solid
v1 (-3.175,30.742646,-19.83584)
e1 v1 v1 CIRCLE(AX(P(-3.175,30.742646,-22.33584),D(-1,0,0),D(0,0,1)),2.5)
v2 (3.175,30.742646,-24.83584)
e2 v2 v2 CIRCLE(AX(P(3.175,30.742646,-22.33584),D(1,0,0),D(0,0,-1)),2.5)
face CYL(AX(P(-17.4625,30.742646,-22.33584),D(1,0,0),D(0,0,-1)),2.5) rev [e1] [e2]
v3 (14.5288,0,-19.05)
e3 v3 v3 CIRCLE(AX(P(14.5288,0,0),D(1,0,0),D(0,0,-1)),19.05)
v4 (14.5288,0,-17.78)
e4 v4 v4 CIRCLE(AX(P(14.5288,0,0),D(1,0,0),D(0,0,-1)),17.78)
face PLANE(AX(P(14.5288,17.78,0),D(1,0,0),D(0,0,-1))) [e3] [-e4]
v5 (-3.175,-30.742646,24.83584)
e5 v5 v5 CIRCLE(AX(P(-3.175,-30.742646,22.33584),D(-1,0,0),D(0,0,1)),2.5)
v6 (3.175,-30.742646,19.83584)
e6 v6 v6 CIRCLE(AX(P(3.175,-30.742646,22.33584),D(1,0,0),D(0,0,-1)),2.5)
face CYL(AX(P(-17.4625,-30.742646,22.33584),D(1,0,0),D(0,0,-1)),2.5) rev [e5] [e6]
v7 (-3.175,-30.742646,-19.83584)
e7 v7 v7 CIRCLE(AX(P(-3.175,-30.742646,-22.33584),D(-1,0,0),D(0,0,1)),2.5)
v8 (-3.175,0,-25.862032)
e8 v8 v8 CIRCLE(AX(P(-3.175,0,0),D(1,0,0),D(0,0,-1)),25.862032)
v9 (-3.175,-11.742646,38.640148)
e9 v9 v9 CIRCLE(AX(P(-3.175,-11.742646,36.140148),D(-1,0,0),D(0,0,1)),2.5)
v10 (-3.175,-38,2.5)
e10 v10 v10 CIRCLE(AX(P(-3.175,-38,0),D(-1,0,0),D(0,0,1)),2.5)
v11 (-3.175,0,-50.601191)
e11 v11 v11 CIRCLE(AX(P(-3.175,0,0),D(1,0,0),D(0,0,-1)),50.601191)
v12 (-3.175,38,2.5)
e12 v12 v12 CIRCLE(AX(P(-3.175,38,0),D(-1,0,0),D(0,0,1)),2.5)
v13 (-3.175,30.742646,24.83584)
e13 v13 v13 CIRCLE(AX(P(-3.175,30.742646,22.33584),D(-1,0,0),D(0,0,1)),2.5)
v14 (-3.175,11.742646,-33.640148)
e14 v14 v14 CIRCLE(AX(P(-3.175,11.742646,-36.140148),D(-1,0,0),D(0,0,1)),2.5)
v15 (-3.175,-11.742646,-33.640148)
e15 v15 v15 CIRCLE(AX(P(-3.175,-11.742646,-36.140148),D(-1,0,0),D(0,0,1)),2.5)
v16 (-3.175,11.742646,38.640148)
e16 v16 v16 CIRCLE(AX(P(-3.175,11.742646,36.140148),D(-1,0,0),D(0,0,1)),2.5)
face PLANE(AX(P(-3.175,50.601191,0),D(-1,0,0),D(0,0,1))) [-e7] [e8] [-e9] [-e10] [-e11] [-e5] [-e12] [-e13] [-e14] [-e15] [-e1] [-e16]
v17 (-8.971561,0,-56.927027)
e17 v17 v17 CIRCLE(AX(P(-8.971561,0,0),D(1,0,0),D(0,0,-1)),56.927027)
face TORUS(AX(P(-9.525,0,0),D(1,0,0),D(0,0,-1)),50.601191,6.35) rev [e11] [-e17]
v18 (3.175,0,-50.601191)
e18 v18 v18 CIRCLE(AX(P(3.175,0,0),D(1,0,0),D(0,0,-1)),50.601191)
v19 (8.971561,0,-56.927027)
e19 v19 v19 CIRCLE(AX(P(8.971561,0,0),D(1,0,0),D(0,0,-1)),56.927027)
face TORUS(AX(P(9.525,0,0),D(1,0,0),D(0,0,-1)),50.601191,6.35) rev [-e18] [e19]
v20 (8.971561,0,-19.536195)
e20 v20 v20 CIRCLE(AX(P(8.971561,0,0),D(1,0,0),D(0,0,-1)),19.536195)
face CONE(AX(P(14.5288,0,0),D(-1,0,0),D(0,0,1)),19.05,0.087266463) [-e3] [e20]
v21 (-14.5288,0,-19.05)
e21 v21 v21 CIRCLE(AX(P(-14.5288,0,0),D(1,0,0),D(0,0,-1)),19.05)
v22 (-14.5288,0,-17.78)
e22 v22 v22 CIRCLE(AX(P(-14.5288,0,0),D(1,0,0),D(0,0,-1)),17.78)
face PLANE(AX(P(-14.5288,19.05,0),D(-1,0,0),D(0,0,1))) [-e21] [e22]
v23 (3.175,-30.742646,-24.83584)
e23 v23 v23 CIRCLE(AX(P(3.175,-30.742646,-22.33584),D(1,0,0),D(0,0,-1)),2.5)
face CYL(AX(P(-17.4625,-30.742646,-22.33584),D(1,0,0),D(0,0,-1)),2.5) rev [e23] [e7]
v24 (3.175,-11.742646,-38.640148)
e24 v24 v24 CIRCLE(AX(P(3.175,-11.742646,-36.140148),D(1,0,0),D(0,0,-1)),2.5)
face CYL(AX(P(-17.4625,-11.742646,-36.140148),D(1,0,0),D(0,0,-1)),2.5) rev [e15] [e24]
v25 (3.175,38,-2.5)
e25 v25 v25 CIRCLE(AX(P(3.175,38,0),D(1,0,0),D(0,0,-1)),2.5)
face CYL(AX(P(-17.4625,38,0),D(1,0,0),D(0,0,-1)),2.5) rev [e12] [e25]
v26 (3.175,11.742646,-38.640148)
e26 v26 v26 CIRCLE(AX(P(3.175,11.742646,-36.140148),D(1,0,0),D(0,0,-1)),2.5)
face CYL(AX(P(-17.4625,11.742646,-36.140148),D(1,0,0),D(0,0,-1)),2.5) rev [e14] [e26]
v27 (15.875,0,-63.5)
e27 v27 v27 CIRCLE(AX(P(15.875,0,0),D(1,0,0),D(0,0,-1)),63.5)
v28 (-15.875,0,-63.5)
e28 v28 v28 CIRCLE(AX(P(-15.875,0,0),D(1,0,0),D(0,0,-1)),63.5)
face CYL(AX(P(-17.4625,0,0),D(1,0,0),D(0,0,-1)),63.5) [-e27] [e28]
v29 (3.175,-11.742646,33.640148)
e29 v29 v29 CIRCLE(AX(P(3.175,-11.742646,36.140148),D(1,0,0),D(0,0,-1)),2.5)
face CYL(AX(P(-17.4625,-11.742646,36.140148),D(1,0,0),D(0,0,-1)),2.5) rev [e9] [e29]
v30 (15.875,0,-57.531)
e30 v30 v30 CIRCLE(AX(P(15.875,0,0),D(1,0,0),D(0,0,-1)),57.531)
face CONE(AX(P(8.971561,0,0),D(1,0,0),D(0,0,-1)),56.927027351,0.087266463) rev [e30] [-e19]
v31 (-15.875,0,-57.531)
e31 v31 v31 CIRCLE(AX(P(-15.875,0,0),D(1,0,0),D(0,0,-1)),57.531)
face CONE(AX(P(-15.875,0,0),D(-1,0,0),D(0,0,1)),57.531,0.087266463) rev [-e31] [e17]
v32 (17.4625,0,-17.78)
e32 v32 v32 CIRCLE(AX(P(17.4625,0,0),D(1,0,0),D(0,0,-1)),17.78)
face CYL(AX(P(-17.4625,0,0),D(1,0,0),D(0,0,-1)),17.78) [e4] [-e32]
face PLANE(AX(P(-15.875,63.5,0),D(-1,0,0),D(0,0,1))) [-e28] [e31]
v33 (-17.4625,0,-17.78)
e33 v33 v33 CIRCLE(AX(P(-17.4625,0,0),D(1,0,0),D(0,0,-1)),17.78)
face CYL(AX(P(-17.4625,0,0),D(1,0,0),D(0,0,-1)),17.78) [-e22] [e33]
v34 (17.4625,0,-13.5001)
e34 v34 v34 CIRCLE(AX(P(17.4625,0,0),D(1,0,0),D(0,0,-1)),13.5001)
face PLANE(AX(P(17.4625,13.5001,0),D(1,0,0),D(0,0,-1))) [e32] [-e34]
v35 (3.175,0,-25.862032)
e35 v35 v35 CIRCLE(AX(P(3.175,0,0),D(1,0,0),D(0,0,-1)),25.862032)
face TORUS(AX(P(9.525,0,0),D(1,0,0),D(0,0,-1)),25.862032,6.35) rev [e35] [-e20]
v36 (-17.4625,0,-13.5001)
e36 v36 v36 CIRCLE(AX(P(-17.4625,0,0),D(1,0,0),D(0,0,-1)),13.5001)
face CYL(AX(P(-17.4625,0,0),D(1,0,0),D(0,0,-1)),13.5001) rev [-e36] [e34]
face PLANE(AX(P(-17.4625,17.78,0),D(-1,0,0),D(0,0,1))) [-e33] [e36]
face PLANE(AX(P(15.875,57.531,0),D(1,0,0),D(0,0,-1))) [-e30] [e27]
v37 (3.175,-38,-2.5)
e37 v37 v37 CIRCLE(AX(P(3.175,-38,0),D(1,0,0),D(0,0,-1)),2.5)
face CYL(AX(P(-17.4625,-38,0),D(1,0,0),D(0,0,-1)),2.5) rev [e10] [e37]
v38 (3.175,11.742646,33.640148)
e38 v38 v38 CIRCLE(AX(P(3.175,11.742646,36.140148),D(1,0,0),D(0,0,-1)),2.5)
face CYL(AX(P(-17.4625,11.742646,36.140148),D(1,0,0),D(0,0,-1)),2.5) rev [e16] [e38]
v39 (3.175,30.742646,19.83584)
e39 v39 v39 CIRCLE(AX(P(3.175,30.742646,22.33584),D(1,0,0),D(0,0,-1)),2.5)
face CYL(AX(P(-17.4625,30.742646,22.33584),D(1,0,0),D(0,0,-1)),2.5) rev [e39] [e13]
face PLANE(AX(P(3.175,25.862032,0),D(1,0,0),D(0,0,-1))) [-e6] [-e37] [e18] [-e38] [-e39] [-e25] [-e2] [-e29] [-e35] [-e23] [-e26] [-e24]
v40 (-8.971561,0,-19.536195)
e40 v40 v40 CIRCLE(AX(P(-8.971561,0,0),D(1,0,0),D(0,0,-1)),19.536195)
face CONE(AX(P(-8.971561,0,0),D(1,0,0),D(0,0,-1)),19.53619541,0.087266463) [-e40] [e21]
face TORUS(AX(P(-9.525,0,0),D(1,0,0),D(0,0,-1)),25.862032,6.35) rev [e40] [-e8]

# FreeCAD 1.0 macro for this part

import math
import FreeCAD as App
import Part
import Sketcher
from FreeCAD import Vector
Q = App.Units.Quantity

doc = App.newDocument("Part")
body = doc.addObject("PartDesign::Body", "Body")

# Sketch on XY plane
sketch1 = body.newObject("Sketcher::SketchObject", "Sketch")
sketch1.AttachmentSupport = (doc.getObject("XY_Plane"), [""])
sketch1.MapMode = "FlatFace"
sketch1.addGeometry([
    Part.LineSegment(Vector(-14.5, 17.8, 0), Vector(-17.5, 17.8, 0)),  # 0
    Part.LineSegment(Vector(-17.5, 17.8, 0), Vector(-17.5, 13.5, 0)),  # 1
    Part.LineSegment(Vector(-17.5, 13.5, 0), Vector(17.5, 13.5, 0)),  # 2
    Part.LineSegment(Vector(17.5, 13.5, 0), Vector(17.5, 17.8, 0)),  # 3
    Part.LineSegment(Vector(17.5, 17.8, 0), Vector(14.5, 17.8, 0)),  # 4
    Part.LineSegment(Vector(14.5, 17.8, 0), Vector(14.5, 19.1, 0)),  # 5
    Part.LineSegment(Vector(14.5, 19.1, 0), Vector(9, 19.5, 0)),  # 6
    Part.ArcOfCircle(Part.Circle(Vector(9.5, 25.9, 0), Vector(0, 0, 1), 6.3), math.radians(180), math.radians(265)),  # 7
    Part.LineSegment(Vector(3.2, 25.9, 0), Vector(3.2, 50.6, 0)),  # 8
    Part.ArcOfCircle(Part.Circle(Vector(9.5, 50.6, 0), Vector(0, 0, 1), 6.3), math.radians(95), math.radians(180)),  # 9
    Part.LineSegment(Vector(9, 56.9, 0), Vector(15.9, 57.5, 0)),  # 10
    Part.LineSegment(Vector(15.9, 57.5, 0), Vector(15.9, 63.5, 0)),  # 11
    Part.LineSegment(Vector(15.9, 63.5, 0), Vector(-15.9, 63.5, 0)),  # 12
    Part.LineSegment(Vector(-15.9, 63.5, 0), Vector(-15.9, 57.5, 0)),  # 13
    Part.LineSegment(Vector(-15.9, 57.5, 0), Vector(-9, 56.9, 0)),  # 14
    Part.ArcOfCircle(Part.Circle(Vector(-9.5, 50.6, 0), Vector(0, 0, 1), 6.3), math.radians(0), math.radians(85)),  # 15
    Part.LineSegment(Vector(-3.2, 50.6, 0), Vector(-3.2, 25.9, 0)),  # 16
    Part.ArcOfCircle(Part.Circle(Vector(-9.5, 25.9, 0), Vector(0, 0, 1), 6.3), math.radians(-85), math.radians(0)),  # 17
    Part.LineSegment(Vector(-9, 19.5, 0), Vector(-14.5, 19.1, 0)),  # 18
    Part.LineSegment(Vector(-14.5, 19.1, 0), Vector(-14.5, 17.8, 0)),  # 19
], False)
sketch1.addConstraint([
    Sketcher.Constraint("Coincident", 0, 2, 1, 1),
    Sketcher.Constraint("Coincident", 1, 2, 2, 1),
    Sketcher.Constraint("Coincident", 2, 2, 3, 1),
    Sketcher.Constraint("Coincident", 3, 2, 4, 1),
    Sketcher.Constraint("Coincident", 4, 2, 5, 1),
    Sketcher.Constraint("Coincident", 5, 2, 6, 1),
    Sketcher.Constraint("Tangent", 6, 2, 7, 2),
    Sketcher.Constraint("Tangent", 7, 1, 8, 1),
    Sketcher.Constraint("Tangent", 8, 2, 9, 2),
    Sketcher.Constraint("Tangent", 9, 1, 10, 1),
    Sketcher.Constraint("Coincident", 10, 2, 11, 1),
    Sketcher.Constraint("Coincident", 11, 2, 12, 1),
    Sketcher.Constraint("Coincident", 12, 2, 13, 1),
    Sketcher.Constraint("Coincident", 13, 2, 14, 1),
    Sketcher.Constraint("Tangent", 14, 2, 15, 2),
    Sketcher.Constraint("Tangent", 15, 1, 16, 1),
    Sketcher.Constraint("Tangent", 16, 2, 17, 2),
    Sketcher.Constraint("Tangent", 17, 1, 18, 1),
    Sketcher.Constraint("Coincident", 18, 2, 19, 1),
    Sketcher.Constraint("Coincident", 19, 2, 0, 1),
    Sketcher.Constraint("Horizontal", 0),
    Sketcher.Constraint("Vertical", 1),
    Sketcher.Constraint("Horizontal", 2),
    Sketcher.Constraint("Vertical", 3),
    Sketcher.Constraint("Horizontal", 4),
    Sketcher.Constraint("Vertical", 5),
    Sketcher.Constraint("Vertical", 8),
    Sketcher.Constraint("Vertical", 11),
    Sketcher.Constraint("Horizontal", 12),
    Sketcher.Constraint("Vertical", 13),
    Sketcher.Constraint("Vertical", 16),
    Sketcher.Constraint("Vertical", 19),
    Sketcher.Constraint("Equal", 7, 9),
    Sketcher.Constraint("Equal", 9, 15),
    Sketcher.Constraint("Equal", 15, 17),
    Sketcher.Constraint("Symmetric", 9, 3, 15, 3, -2),
    Sketcher.Constraint("Symmetric", 0, 2, 3, 2, -2),
    Sketcher.Constraint("Symmetric", 10, 2, 13, 2, -2),
    Sketcher.Constraint("Symmetric", 6, 2, 17, 1, -2),
    Sketcher.Constraint("Parallel", 6, 14),
    Sketcher.Constraint("Horizontal", 5, 2, 18, 2),
    Sketcher.Constraint("Radius", 7, Q("0.25 in")),
    Sketcher.Constraint("Angle", 6, Q("175 deg")),
    Sketcher.Constraint("DistanceX", 15, 3, 10, 2, Q("1 in")),
    Sketcher.Constraint("DistanceX", 12, 2, 12, 1, Q("1.25 in")),
    Sketcher.Constraint("DistanceY", 5, 1, 5, 2, Q("0.05 in")),
    Sketcher.Constraint("DistanceY", -1, 1, 0, 2, Q("0.7 in")),
    Sketcher.Constraint("DistanceY", -1, 1, 11, 2, Q("2.5 in")),
    Sketcher.Constraint("DistanceX", 2, 1, 2, 2, Q("1.375 in")),
    Sketcher.Constraint("DistanceY", 11, 1, 11, 2, Q("0.235 in")),
    Sketcher.Constraint("DistanceX", 0, 2, 0, 1, Q("0.1155 in")),
    Sketcher.Constraint("DistanceY", 1, 2, 1, 1, Q("0.1685 in")),
])
revolution = body.newObject("PartDesign::Revolution", "Revolution")
revolution.Profile = sketch1
revolution.ReferenceAxis = (sketch1, ["H_Axis"])
revolution.Angle = 360

# Sketch on YZ plane
sketch2 = body.newObject("Sketcher::SketchObject", "Sketch001")
sketch2.AttachmentSupport = (doc.getObject("YZ_Plane"), [""])
sketch2.MapMode = "FlatFace"
sketch2.addGeometry([
    Part.Circle(Vector(38, 0, 0), Vector(0, 0, 1), 2.5),  # 0
    Part.Circle(Vector(30.7, -22.3, 0), Vector(0, 0, 1), 2.5),  # 1
    Part.Circle(Vector(11.7, -36.1, 0), Vector(0, 0, 1), 2.5),  # 2
    Part.Circle(Vector(-11.7, -36.1, 0), Vector(0, 0, 1), 2.5),  # 3
    Part.Circle(Vector(-30.7, -22.3, 0), Vector(0, 0, 1), 2.5),  # 4
    Part.Circle(Vector(-38, 0, 0), Vector(0, 0, 1), 2.5),  # 5
    Part.Circle(Vector(-30.7, 22.3, 0), Vector(0, 0, 1), 2.5),  # 6
    Part.Circle(Vector(-11.7, 36.1, 0), Vector(0, 0, 1), 2.5),  # 7
    Part.Circle(Vector(11.7, 36.1, 0), Vector(0, 0, 1), 2.5),  # 8
    Part.Circle(Vector(30.7, 22.3, 0), Vector(0, 0, 1), 2.5),  # 9
], False)
sketch2.addConstraint([
    Sketcher.Constraint("Equal", 0, 1),
    Sketcher.Constraint("Equal", 1, 2),
    Sketcher.Constraint("Equal", 2, 3),
    Sketcher.Constraint("Equal", 3, 4),
    Sketcher.Constraint("Equal", 4, 5),
    Sketcher.Constraint("Equal", 5, 6),
    Sketcher.Constraint("Equal", 6, 7),
    Sketcher.Constraint("Equal", 7, 8),
    Sketcher.Constraint("Equal", 8, 9),
    Sketcher.Constraint("Symmetric", 0, 3, 5, 3, -1, 1),
    Sketcher.Constraint("Symmetric", 1, 3, 6, 3, -1, 1),
    Sketcher.Constraint("Symmetric", 2, 3, 7, 3, -1, 1),
    Sketcher.Constraint("Symmetric", 3, 3, 8, 3, -1, 1),
    Sketcher.Constraint("Symmetric", 4, 3, 9, 3, -1, 1),
    Sketcher.Constraint("Symmetric", 2, 3, 3, 3, -2),
    Sketcher.Constraint("Symmetric", 1, 3, 4, 3, -2),
    Sketcher.Constraint("PointOnObject", 0, 3, -1),
    Sketcher.Constraint("Diameter", 0, Q("5 mm")),
    Sketcher.Constraint("DistanceX", -1, 1, 0, 3, Q("38 mm")),
    Sketcher.Constraint("DistanceX", 2, 3, 1, 3, Q("19 mm")),
    Sketcher.Constraint("DistanceY", 1, 3, -1, 1, Q("22.33584 mm")),
    Sketcher.Constraint("DistanceY", 2, 3, 1, 3, Q("13.804308 mm")),
    Sketcher.Constraint("DistanceX", 3, 3, 2, 3, Q("23.485292 mm")),
])
pocket1 = body.newObject("PartDesign::Pocket", "Pocket")
pocket1.Profile = sketch2
pocket1.Type = "ThroughAll"
pocket1.Midplane = True

doc.recompute()
